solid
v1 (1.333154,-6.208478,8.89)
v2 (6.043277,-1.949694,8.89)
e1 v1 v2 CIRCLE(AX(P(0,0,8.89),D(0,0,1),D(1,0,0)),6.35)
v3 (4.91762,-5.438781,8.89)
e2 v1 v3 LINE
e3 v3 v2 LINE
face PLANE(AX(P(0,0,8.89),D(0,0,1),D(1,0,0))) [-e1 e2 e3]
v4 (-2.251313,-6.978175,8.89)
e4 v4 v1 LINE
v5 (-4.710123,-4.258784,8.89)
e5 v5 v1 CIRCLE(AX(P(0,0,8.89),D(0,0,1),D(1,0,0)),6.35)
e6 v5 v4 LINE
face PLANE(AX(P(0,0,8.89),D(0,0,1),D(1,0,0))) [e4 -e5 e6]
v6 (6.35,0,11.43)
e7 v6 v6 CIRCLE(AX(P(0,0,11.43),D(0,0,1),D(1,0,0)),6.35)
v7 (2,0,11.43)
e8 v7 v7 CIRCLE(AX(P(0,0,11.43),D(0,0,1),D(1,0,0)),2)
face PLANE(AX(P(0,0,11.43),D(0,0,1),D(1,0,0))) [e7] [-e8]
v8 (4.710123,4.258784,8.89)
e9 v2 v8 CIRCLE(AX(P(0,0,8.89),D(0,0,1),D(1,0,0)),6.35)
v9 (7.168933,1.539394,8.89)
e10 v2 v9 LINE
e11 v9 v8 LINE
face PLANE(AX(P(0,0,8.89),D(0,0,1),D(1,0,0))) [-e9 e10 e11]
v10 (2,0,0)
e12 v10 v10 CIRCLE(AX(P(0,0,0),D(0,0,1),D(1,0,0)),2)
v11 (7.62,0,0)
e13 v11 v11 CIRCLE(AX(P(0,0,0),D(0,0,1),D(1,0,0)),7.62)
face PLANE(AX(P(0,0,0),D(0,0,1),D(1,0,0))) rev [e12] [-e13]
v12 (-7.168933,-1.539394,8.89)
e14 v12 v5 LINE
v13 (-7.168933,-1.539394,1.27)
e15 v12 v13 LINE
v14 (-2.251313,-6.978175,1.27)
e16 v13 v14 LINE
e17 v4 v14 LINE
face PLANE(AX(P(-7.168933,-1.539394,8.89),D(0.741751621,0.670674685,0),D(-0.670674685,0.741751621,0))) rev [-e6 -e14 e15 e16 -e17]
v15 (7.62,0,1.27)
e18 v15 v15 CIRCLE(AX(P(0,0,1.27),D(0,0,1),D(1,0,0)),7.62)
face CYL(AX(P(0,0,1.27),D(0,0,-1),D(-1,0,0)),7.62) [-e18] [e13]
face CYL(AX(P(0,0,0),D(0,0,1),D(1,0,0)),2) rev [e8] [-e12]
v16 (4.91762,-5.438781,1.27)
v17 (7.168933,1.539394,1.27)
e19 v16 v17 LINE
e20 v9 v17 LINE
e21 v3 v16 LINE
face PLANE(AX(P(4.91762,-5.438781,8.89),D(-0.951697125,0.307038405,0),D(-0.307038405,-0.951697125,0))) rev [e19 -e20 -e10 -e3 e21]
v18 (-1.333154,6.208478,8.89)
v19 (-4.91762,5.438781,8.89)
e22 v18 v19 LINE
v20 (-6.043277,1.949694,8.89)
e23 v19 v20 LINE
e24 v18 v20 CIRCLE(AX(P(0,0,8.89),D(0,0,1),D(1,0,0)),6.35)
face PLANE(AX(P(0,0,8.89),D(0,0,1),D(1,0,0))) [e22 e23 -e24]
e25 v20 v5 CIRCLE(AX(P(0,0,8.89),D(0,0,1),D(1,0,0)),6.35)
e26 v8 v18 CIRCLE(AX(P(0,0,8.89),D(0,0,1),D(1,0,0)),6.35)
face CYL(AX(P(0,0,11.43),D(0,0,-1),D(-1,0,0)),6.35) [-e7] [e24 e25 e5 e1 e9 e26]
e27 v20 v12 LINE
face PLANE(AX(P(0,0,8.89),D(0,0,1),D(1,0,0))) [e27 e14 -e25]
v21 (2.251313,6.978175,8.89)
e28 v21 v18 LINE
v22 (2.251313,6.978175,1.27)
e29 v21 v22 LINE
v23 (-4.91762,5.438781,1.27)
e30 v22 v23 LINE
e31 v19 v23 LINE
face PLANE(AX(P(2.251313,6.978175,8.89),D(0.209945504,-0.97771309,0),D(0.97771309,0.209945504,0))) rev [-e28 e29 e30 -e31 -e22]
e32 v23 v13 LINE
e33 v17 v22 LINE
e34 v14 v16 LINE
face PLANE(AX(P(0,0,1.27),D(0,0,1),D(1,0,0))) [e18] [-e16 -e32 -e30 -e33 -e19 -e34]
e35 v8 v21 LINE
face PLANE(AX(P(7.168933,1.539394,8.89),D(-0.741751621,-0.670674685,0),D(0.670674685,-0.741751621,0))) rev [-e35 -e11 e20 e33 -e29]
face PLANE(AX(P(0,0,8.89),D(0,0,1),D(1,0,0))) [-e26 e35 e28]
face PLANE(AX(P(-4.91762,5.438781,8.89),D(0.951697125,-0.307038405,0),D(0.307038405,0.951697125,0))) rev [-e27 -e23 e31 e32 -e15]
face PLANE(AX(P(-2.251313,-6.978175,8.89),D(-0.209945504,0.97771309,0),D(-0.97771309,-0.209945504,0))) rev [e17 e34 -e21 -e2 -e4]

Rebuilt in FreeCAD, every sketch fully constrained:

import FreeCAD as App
import Part
import Sketcher
Q = App.Units.Quantity

doc = App.newDocument("Part")
params = doc.addObject("Spreadsheet::Sheet", "Params")
for row, (alias, value) in enumerate([
    ("sketch1_diameter", "0.6 in"),
    ("pad1_length", "0.05 in"),
    ("pad2_length", "0.3 in"),
    ("sketch3_diameter", "0.5 in"),
    ("pad3_length", "0.1 in"),
], start=1):
    params.set(f"A{row}", alias)
    params.set(f"B{row}", "=" + value)
    params.setAlias(f"B{row}", alias)

body = doc.addObject("PartDesign::Body", "Body")

sketch1 = body.newObject("Sketcher::SketchObject", "Sketch")
sketch1.AttachmentSupport = (doc.getObject("XY_Plane"), [""])
sketch1.MapMode = "FlatFace"
sketch1.addGeometry(Part.Circle(App.Vector(0, 0, 0), App.Vector(0, 0, 1), 8), False)
sketch1.addConstraint([
    Sketcher.Constraint("Coincident", 0, 3, -1, 1),
    Sketcher.Constraint("Diameter", 0, Q("0.6 in")),
])
sketch1.setExpression("Constraints[1]", "Params.sketch1_diameter")
pad1 = body.newObject("PartDesign::Pad", "Pad")
pad1.Profile = sketch1
pad1.setExpression("Length", "Params.pad1_length")

sketch2 = body.newObject("Sketcher::SketchObject", "Sketch001")
sketch2.AttachmentSupport = (doc.getObject("XY_Plane"), [""])
sketch2.MapMode = "FlatFace"
sketch2.AttachmentOffset = App.Placement(App.Vector(0, 0, 0.05 * 25.4), App.Rotation())
sketch2.addGeometry([
    Part.LineSegment(App.Vector(5, -5, 0), App.Vector(7, 2, 0)),
    Part.LineSegment(App.Vector(7, 2, 0), App.Vector(2, 7, 0)),
    Part.LineSegment(App.Vector(2, 7, 0), App.Vector(-5, 5, 0)),
    Part.LineSegment(App.Vector(-5, 5, 0), App.Vector(-7, -2, 0)),
    Part.LineSegment(App.Vector(-7, -2, 0), App.Vector(-2, -7, 0)),
    Part.LineSegment(App.Vector(-2, -7, 0), App.Vector(5, -5, 0)),
], False)
sketch2.addConstraint([
    Sketcher.Constraint("Coincident", 0, 2, 1, 1),
    Sketcher.Constraint("Coincident", 1, 2, 2, 1),
    Sketcher.Constraint("Coincident", 2, 2, 3, 1),
    Sketcher.Constraint("Coincident", 3, 2, 4, 1),
    Sketcher.Constraint("Coincident", 4, 2, 5, 1),
    Sketcher.Constraint("Coincident", 5, 2, 0, 1),
    Sketcher.Constraint("Symmetric", 0, 2, 3, 2, -1, 1),
    Sketcher.Constraint("Symmetric", 1, 2, 4, 2, -1, 1),
    Sketcher.Constraint("Symmetric", 2, 2, 5, 2, -1, 1),
    Sketcher.Constraint("Equal", 0, 1),
    Sketcher.Constraint("Equal", 1, 2),
    Sketcher.Constraint("Distance", 0, Q("7.332348 mm")),
    Sketcher.Constraint("DistanceX", 2, 2, -1, 1, Q("4.91762 mm")),
    Sketcher.Constraint("DistanceY", -1, 1, 2, 2, Q("5.438781 mm")),
    Sketcher.Constraint("DistanceX", 1, 2, 0, 2, Q("4.91762 mm")),
])
pad2 = body.newObject("PartDesign::Pad", "Pad001")
pad2.Profile = sketch2
pad2.setExpression("Length", "Params.pad2_length")

sketch3 = body.newObject("Sketcher::SketchObject", "Sketch002")
sketch3.AttachmentSupport = (doc.getObject("XY_Plane"), [""])
sketch3.MapMode = "FlatFace"
sketch3.AttachmentOffset = App.Placement(App.Vector(0, 0, 0.35 * 25.4), App.Rotation())
sketch3.addGeometry(Part.Circle(App.Vector(0, 0, 0), App.Vector(0, 0, 1), 6), False)
sketch3.addConstraint([
    Sketcher.Constraint("Coincident", 0, 3, -1, 1),
    Sketcher.Constraint("Diameter", 0, Q("0.5 in")),
])
sketch3.setExpression("Constraints[1]", "Params.sketch3_diameter")
pad3 = body.newObject("PartDesign::Pad", "Pad002")
pad3.Profile = sketch3
pad3.setExpression("Length", "Params.pad3_length")

sketch4 = body.newObject("Sketcher::SketchObject", "Sketch003")
sketch4.AttachmentSupport = (doc.getObject("XY_Plane"), [""])
sketch4.MapMode = "FlatFace"
sketch4.AttachmentOffset = App.Placement(App.Vector(0, 0, 0.45 * 25.4), App.Rotation())
sketch4.addGeometry(Part.Circle(App.Vector(0, 0, 0), App.Vector(0, 0, 1), 2), False)
sketch4.addConstraint([
    Sketcher.Constraint("Coincident", 0, 3, -1, 1),
    Sketcher.Constraint("Diameter", 0, Q("4 mm")),
])
pocket1 = body.newObject("PartDesign::Pocket", "Pocket")
pocket1.Profile = sketch4
pocket1.Type = "ThroughAll"
pocket1.Midplane = True

doc.recompute()
